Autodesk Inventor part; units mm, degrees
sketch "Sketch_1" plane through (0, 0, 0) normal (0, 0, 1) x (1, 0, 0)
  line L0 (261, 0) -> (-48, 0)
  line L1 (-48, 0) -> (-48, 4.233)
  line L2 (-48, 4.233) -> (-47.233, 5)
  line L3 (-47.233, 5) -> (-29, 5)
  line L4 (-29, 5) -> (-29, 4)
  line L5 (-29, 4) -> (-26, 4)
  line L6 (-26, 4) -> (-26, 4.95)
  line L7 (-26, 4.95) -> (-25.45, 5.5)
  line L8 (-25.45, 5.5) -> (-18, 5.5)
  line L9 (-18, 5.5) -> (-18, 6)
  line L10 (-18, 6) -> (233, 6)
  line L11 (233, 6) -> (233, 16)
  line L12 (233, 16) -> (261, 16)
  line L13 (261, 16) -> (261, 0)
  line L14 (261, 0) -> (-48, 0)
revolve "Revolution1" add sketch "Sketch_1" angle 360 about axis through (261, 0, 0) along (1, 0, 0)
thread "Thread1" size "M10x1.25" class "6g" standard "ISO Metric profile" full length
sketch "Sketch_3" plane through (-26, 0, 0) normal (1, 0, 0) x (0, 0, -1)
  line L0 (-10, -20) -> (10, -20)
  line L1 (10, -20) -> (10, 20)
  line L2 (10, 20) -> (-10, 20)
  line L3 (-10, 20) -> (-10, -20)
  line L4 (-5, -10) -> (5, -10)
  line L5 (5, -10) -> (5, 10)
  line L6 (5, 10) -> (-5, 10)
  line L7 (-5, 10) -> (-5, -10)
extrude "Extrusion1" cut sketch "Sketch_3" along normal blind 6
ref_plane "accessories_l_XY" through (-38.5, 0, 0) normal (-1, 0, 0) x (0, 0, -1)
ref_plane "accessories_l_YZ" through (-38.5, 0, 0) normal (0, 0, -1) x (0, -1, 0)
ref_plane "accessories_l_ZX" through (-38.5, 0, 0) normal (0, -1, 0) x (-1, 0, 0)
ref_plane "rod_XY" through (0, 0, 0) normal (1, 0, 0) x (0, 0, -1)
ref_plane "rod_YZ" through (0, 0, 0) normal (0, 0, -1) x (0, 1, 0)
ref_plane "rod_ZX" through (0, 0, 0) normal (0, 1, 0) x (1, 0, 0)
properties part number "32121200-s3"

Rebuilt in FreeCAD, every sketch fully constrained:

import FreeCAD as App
import Part
import Sketcher
Q = App.Units.Quantity


def add_polygon(sketch, points):
    """Adds a closed chain of lines whose ends are joined by coincident constraints."""
    first, n = sketch.GeometryCount, len(points)
    for a, b in zip(points, points[1:] + points[:1]):
        sketch.addGeometry(Part.LineSegment(App.Vector(*a, 0), App.Vector(*b, 0)), False)
    for i in range(n):
        sketch.addConstraint(Sketcher.Constraint("Coincident", first + i, 2, first + (i + 1) % n, 1))

doc = App.newDocument("Part")
body = doc.addObject("PartDesign::Body", "Body")

# Sketch on XY plane
sketch1 = body.newObject("Sketcher::SketchObject", "Sketch")
sketch1.AttachmentSupport = (doc.getObject("XY_Plane"), [""])
sketch1.MapMode = "FlatFace"
add_polygon(sketch1, [(-48, 0), (261, 0), (261, 16), (233, 16), (233, 6), (-18, 6), (-18, 5.5), (-25.45, 5.5), (-26, 4.95), (-26, 4), (-29, 4), (-29, 5), (-47.233, 5), (-48, 4.233)])  # lines 0-13
sketch1.addConstraint(Sketcher.Constraint("Horizontal", 0))
sketch1.addConstraint(Sketcher.Constraint("Vertical", 1))
sketch1.addConstraint(Sketcher.Constraint("Horizontal", 2))
sketch1.addConstraint(Sketcher.Constraint("Vertical", 3))
sketch1.addConstraint(Sketcher.Constraint("Horizontal", 4))
sketch1.addConstraint(Sketcher.Constraint("Vertical", 5))
sketch1.addConstraint(Sketcher.Constraint("Horizontal", 6))
sketch1.addConstraint(Sketcher.Constraint("Vertical", 8))
sketch1.addConstraint(Sketcher.Constraint("Horizontal", 9))
sketch1.addConstraint(Sketcher.Constraint("Vertical", 10))
sketch1.addConstraint(Sketcher.Constraint("Horizontal", 11))
sketch1.addConstraint(Sketcher.Constraint("Vertical", 13))
sketch1.addConstraint(Sketcher.Constraint("PointOnObject", 0, 2, -1))
sketch1.addConstraint(Sketcher.Constraint("Parallel", 7, 12))
sketch1.addConstraint(Sketcher.Constraint("DistanceX", 0, 1, 0, 2, Q("309 mm")))
sketch1.addConstraint(Sketcher.Constraint("DistanceX", 2, 2, 2, 1, Q("28 mm")))
sketch1.addConstraint(Sketcher.Constraint("DistanceX", 4, 2, 4, 1, Q("251 mm")))
sketch1.addConstraint(Sketcher.Constraint("DistanceX", 9, 2, 9, 1, Q("3 mm")))
sketch1.addConstraint(Sketcher.Constraint("DistanceY", 1, 1, 1, 2, Q("16 mm")))
sketch1.addConstraint(Sketcher.Constraint("DistanceY", 3, 2, 3, 1, Q("10 mm")))
sketch1.addConstraint(Sketcher.Constraint("DistanceY", 10, 1, 10, 2, Q("1 mm")))
sketch1.addConstraint(Sketcher.Constraint("Angle", 7, Q("-135 deg")))
sketch1.addConstraint(Sketcher.Constraint("DistanceY", 5, 2, 5, 1, Q("0.5 mm")))
sketch1.addConstraint(Sketcher.Constraint("DistanceX", -1, 1, 0, 2, Q("261 mm")))
sketch1.addConstraint(Sketcher.Constraint("DistanceX", 7, 2, -1, 1, Q("26 mm")))
sketch1.addConstraint(Sketcher.Constraint("DistanceY", -1, 1, 8, 2, Q("4 mm")))
sketch1.addConstraint(Sketcher.Constraint("DistanceX", 6, 2, 6, 1, Q("7.45 mm")))
sketch1.addConstraint(Sketcher.Constraint("DistanceX", 11, 2, 11, 1, Q("18.233 mm")))
revolution = body.newObject("PartDesign::Revolution", "Revolution")
revolution.Profile = sketch1
revolution.ReferenceAxis = (sketch1, ["H_Axis"])
revolution.Angle = 360

# Sketch on YZ plane
sketch2 = body.newObject("Sketcher::SketchObject", "Sketch001")
sketch2.AttachmentSupport = (doc.getObject("YZ_Plane"), [""])
sketch2.MapMode = "FlatFace"
sketch2.AttachmentOffset = App.Placement(App.Vector(0, 0, -26), App.Rotation())
add_polygon(sketch2, [(20, 10), (-20, 10), (-20, -10), (20, -10)])  # lines 0-3
add_polygon(sketch2, [(-10, -5), (-10, 5), (10, 5), (10, -5)])  # lines 4-7
sketch2.addConstraint(Sketcher.Constraint("Horizontal", 0))
sketch2.addConstraint(Sketcher.Constraint("Vertical", 1))
sketch2.addConstraint(Sketcher.Constraint("Horizontal", 2))
sketch2.addConstraint(Sketcher.Constraint("Vertical", 3))
sketch2.addConstraint(Sketcher.Constraint("Vertical", 4))
sketch2.addConstraint(Sketcher.Constraint("Horizontal", 5))
sketch2.addConstraint(Sketcher.Constraint("Vertical", 6))
sketch2.addConstraint(Sketcher.Constraint("Horizontal", 7))
sketch2.addConstraint(Sketcher.Constraint("Symmetric", 0, 2, 2, 2, -1, 1))
sketch2.addConstraint(Sketcher.Constraint("Symmetric", 4, 2, 6, 2, -1, 1))
sketch2.addConstraint(Sketcher.Constraint("Equal", 7, 1))
sketch2.addConstraint(Sketcher.Constraint("DistanceX", 0, 2, 0, 1, Q("40 mm")))
sketch2.addConstraint(Sketcher.Constraint("DistanceX", 5, 1, 5, 2, Q("20 mm")))
sketch2.addConstraint(Sketcher.Constraint("DistanceY", 4, 1, 4, 2, Q("10 mm")))
pocket1 = body.newObject("PartDesign::Pocket", "Pocket")
pocket1.Profile = sketch2
pocket1.Length = 6
pocket1.Reversed = True

doc.recompute()
